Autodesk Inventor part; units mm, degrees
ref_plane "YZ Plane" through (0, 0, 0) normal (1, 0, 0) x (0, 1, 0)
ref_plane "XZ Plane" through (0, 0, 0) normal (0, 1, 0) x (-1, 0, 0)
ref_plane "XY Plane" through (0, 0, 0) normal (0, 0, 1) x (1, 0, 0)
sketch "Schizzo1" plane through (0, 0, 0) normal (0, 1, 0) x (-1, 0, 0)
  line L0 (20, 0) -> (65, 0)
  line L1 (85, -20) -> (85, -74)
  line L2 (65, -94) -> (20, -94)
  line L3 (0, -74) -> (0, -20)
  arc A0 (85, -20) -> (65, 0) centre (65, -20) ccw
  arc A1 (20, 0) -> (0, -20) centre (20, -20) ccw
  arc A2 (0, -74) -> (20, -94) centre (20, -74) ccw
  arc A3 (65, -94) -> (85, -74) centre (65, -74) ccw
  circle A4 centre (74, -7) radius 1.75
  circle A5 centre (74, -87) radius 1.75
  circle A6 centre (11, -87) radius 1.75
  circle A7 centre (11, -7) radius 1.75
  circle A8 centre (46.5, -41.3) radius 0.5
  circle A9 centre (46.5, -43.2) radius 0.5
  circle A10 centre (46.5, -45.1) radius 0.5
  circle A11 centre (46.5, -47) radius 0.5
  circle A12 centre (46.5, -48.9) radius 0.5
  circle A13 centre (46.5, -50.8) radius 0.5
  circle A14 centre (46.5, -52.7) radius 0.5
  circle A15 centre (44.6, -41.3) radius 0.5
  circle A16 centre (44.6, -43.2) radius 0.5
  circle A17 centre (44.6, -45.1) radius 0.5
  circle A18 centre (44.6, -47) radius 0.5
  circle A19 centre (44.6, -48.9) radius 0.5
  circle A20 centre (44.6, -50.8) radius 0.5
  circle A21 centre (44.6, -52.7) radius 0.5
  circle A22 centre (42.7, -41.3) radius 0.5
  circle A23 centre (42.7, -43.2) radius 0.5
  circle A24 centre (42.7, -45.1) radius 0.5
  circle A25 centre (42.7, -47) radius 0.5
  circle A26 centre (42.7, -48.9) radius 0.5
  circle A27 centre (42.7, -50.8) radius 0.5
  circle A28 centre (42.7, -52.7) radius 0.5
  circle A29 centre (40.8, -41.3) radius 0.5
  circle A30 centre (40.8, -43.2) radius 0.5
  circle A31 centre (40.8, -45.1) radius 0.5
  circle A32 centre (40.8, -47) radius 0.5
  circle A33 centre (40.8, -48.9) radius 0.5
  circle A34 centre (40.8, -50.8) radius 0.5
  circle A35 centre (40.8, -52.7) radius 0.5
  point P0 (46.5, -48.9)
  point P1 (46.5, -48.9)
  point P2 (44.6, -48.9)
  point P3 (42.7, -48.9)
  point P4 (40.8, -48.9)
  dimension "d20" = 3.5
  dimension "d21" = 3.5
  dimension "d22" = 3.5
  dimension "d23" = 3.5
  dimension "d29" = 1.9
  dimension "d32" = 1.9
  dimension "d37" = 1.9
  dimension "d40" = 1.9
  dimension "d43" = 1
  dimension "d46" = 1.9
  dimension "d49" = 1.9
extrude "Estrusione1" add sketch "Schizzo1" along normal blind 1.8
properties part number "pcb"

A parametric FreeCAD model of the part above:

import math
import FreeCAD as App
import Part
import Sketcher
Q = App.Units.Quantity

doc = App.newDocument("Part")
body = doc.addObject("PartDesign::Body", "Body")

sketch1 = doc.addObject("Sketcher::SketchObject", "Sketch")
body.addObject(sketch1)
sketch1.AttachmentSupport = (doc.XZ_Plane, [""])
sketch1.MapMode = "FlatFace"
sketch1.addGeometry(Part.LineSegment(App.Vector(-65, 0, 0), App.Vector(-20, 0, 0)), False)
sketch1.addGeometry(Part.ArcOfCircle(Part.Circle(App.Vector(-20, -20, 0), App.Vector(0, 0, 1), 20), math.radians(0), math.radians(90)), False)
sketch1.addGeometry(Part.LineSegment(App.Vector(0, -20, 0), App.Vector(0, -74, 0)), False)
sketch1.addGeometry(Part.ArcOfCircle(Part.Circle(App.Vector(-20, -74, 0), App.Vector(0, 0, 1), 20), math.radians(-90), math.radians(0)), False)
sketch1.addGeometry(Part.LineSegment(App.Vector(-20, -94, 0), App.Vector(-65, -94, 0)), False)
sketch1.addGeometry(Part.ArcOfCircle(Part.Circle(App.Vector(-65, -74, 0), App.Vector(0, 0, 1), 20), math.radians(180), math.radians(270)), False)
sketch1.addGeometry(Part.LineSegment(App.Vector(-85, -74, 0), App.Vector(-85, -20, 0)), False)
sketch1.addGeometry(Part.ArcOfCircle(Part.Circle(App.Vector(-65, -20, 0), App.Vector(0, 0, 1), 20), math.radians(90), math.radians(180)), False)
sketch1.addGeometry(Part.Circle(App.Vector(-11, -87, 0), App.Vector(0, 0, 1), 1.8), False)
sketch1.addGeometry(Part.Circle(App.Vector(-40.8, -52.7, 0), App.Vector(0, 0, 1), 0.5), False)
sketch1.addGeometry(Part.Circle(App.Vector(-40.8, -50.8, 0), App.Vector(0, 0, 1), 0.5), False)
sketch1.addGeometry(Part.Circle(App.Vector(-40.8, -48.9, 0), App.Vector(0, 0, 1), 0.5), False)
sketch1.addGeometry(Part.Circle(App.Vector(-74, -87, 0), App.Vector(0, 0, 1), 1.8), False)
sketch1.addGeometry(Part.Circle(App.Vector(-42.7, -52.7, 0), App.Vector(0, 0, 1), 0.5), False)
sketch1.addGeometry(Part.Circle(App.Vector(-44.6, -52.7, 0), App.Vector(0, 0, 1), 0.5), False)
sketch1.addGeometry(Part.Circle(App.Vector(-42.7, -50.8, 0), App.Vector(0, 0, 1), 0.5), False)
sketch1.addGeometry(Part.Circle(App.Vector(-44.6, -50.8, 0), App.Vector(0, 0, 1), 0.5), False)
sketch1.addGeometry(Part.Circle(App.Vector(-46.5, -52.7, 0), App.Vector(0, 0, 1), 0.5), False)
sketch1.addGeometry(Part.Circle(App.Vector(-46.5, -50.8, 0), App.Vector(0, 0, 1), 0.5), False)
sketch1.addGeometry(Part.Circle(App.Vector(-42.7, -48.9, 0), App.Vector(0, 0, 1), 0.5), False)
sketch1.addGeometry(Part.Circle(App.Vector(-44.6, -48.9, 0), App.Vector(0, 0, 1), 0.5), False)
sketch1.addGeometry(Part.Circle(App.Vector(-46.5, -48.9, 0), App.Vector(0, 0, 1), 0.5), False)
sketch1.addGeometry(Part.Circle(App.Vector(-40.8, -47, 0), App.Vector(0, 0, 1), 0.5), False)
sketch1.addGeometry(Part.Circle(App.Vector(-40.8, -45.1, 0), App.Vector(0, 0, 1), 0.5), False)
sketch1.addGeometry(Part.Circle(App.Vector(-40.8, -43.2, 0), App.Vector(0, 0, 1), 0.5), False)
sketch1.addGeometry(Part.Circle(App.Vector(-40.8, -41.3, 0), App.Vector(0, 0, 1), 0.5), False)
sketch1.addGeometry(Part.Circle(App.Vector(-11, -7, 0), App.Vector(0, 0, 1), 1.8), False)
sketch1.addGeometry(Part.Circle(App.Vector(-42.7, -47, 0), App.Vector(0, 0, 1), 0.5), False)
sketch1.addGeometry(Part.Circle(App.Vector(-44.6, -47, 0), App.Vector(0, 0, 1), 0.5), False)
sketch1.addGeometry(Part.Circle(App.Vector(-42.7, -45.1, 0), App.Vector(0, 0, 1), 0.5), False)
sketch1.addGeometry(Part.Circle(App.Vector(-44.6, -45.1, 0), App.Vector(0, 0, 1), 0.5), False)
sketch1.addGeometry(Part.Circle(App.Vector(-46.5, -47, 0), App.Vector(0, 0, 1), 0.5), False)
sketch1.addGeometry(Part.Circle(App.Vector(-46.5, -45.1, 0), App.Vector(0, 0, 1), 0.5), False)
sketch1.addGeometry(Part.Circle(App.Vector(-42.7, -43.2, 0), App.Vector(0, 0, 1), 0.5), False)
sketch1.addGeometry(Part.Circle(App.Vector(-44.6, -43.2, 0), App.Vector(0, 0, 1), 0.5), False)
sketch1.addGeometry(Part.Circle(App.Vector(-42.7, -41.3, 0), App.Vector(0, 0, 1), 0.5), False)
sketch1.addGeometry(Part.Circle(App.Vector(-44.6, -41.3, 0), App.Vector(0, 0, 1), 0.5), False)
sketch1.addGeometry(Part.Circle(App.Vector(-46.5, -43.2, 0), App.Vector(0, 0, 1), 0.5), False)
sketch1.addGeometry(Part.Circle(App.Vector(-46.5, -41.3, 0), App.Vector(0, 0, 1), 0.5), False)
sketch1.addGeometry(Part.Circle(App.Vector(-74, -7, 0), App.Vector(0, 0, 1), 1.8), False)
sketch1.addConstraint(Sketcher.Constraint("Tangent", 0, 2, 1, 2))
sketch1.addConstraint(Sketcher.Constraint("Tangent", 1, 1, 2, 1))
sketch1.addConstraint(Sketcher.Constraint("Tangent", 2, 2, 3, 2))
sketch1.addConstraint(Sketcher.Constraint("Tangent", 3, 1, 4, 1))
sketch1.addConstraint(Sketcher.Constraint("Tangent", 4, 2, 5, 2))
sketch1.addConstraint(Sketcher.Constraint("Tangent", 5, 1, 6, 1))
sketch1.addConstraint(Sketcher.Constraint("Tangent", 6, 2, 7, 2))
sketch1.addConstraint(Sketcher.Constraint("Tangent", 7, 1, 0, 1))
sketch1.addConstraint(Sketcher.Constraint("Horizontal", 0))
sketch1.addConstraint(Sketcher.Constraint("Vertical", 2))
sketch1.addConstraint(Sketcher.Constraint("Horizontal", 4))
sketch1.addConstraint(Sketcher.Constraint("Vertical", 6))
sketch1.addConstraint(Sketcher.Constraint("Equal", 1, 3))
sketch1.addConstraint(Sketcher.Constraint("Equal", 3, 5))
sketch1.addConstraint(Sketcher.Constraint("Equal", 5, 7))
sketch1.addConstraint(Sketcher.Constraint("Equal", 9, 10))
sketch1.addConstraint(Sketcher.Constraint("Equal", 10, 11))
sketch1.addConstraint(Sketcher.Constraint("Equal", 8, 12))
sketch1.addConstraint(Sketcher.Constraint("Equal", 11, 13))
sketch1.addConstraint(Sketcher.Constraint("Equal", 13, 14))
sketch1.addConstraint(Sketcher.Constraint("Equal", 14, 15))
sketch1.addConstraint(Sketcher.Constraint("Equal", 15, 16))
sketch1.addConstraint(Sketcher.Constraint("Equal", 16, 17))
sketch1.addConstraint(Sketcher.Constraint("Equal", 17, 18))
sketch1.addConstraint(Sketcher.Constraint("Equal", 18, 19))
sketch1.addConstraint(Sketcher.Constraint("Equal", 19, 20))
sketch1.addConstraint(Sketcher.Constraint("Equal", 20, 21))
sketch1.addConstraint(Sketcher.Constraint("Equal", 21, 22))
sketch1.addConstraint(Sketcher.Constraint("Equal", 22, 23))
sketch1.addConstraint(Sketcher.Constraint("Equal", 23, 24))
sketch1.addConstraint(Sketcher.Constraint("Equal", 24, 25))
sketch1.addConstraint(Sketcher.Constraint("Equal", 12, 26))
sketch1.addConstraint(Sketcher.Constraint("Equal", 25, 27))
sketch1.addConstraint(Sketcher.Constraint("Equal", 27, 28))
sketch1.addConstraint(Sketcher.Constraint("Equal", 28, 29))
sketch1.addConstraint(Sketcher.Constraint("Equal", 29, 30))
sketch1.addConstraint(Sketcher.Constraint("Equal", 30, 31))
sketch1.addConstraint(Sketcher.Constraint("Equal", 31, 32))
sketch1.addConstraint(Sketcher.Constraint("Equal", 32, 33))
sketch1.addConstraint(Sketcher.Constraint("Equal", 33, 34))
sketch1.addConstraint(Sketcher.Constraint("Equal", 34, 35))
sketch1.addConstraint(Sketcher.Constraint("Equal", 35, 36))
sketch1.addConstraint(Sketcher.Constraint("Equal", 36, 37))
sketch1.addConstraint(Sketcher.Constraint("Equal", 37, 38))
sketch1.addConstraint(Sketcher.Constraint("Equal", 26, 39))
sketch1.addConstraint(Sketcher.Constraint("PointOnObject", 0, 2, -1))
sketch1.addConstraint(Sketcher.Constraint("PointOnObject", 1, 1, -2))
sketch1.addConstraint(Sketcher.Constraint("Horizontal", 8, 3, 12, 3))
sketch1.addConstraint(Sketcher.Constraint("Horizontal", 9, 3, 13, 3))
sketch1.addConstraint(Sketcher.Constraint("Horizontal", 13, 3, 14, 3))
sketch1.addConstraint(Sketcher.Constraint("Horizontal", 10, 3, 15, 3))
sketch1.addConstraint(Sketcher.Constraint("Horizontal", 15, 3, 16, 3))
sketch1.addConstraint(Sketcher.Constraint("Horizontal", 14, 3, 17, 3))
sketch1.addConstraint(Sketcher.Constraint("Horizontal", 16, 3, 18, 3))
sketch1.addConstraint(Sketcher.Constraint("Horizontal", 11, 3, 19, 3))
sketch1.addConstraint(Sketcher.Constraint("Horizontal", 19, 3, 20, 3))
sketch1.addConstraint(Sketcher.Constraint("Horizontal", 20, 3, 21, 3))
sketch1.addConstraint(Sketcher.Constraint("Horizontal", 22, 3, 27, 3))
sketch1.addConstraint(Sketcher.Constraint("Horizontal", 27, 3, 28, 3))
sketch1.addConstraint(Sketcher.Constraint("Horizontal", 23, 3, 29, 3))
sketch1.addConstraint(Sketcher.Constraint("Horizontal", 29, 3, 30, 3))
sketch1.addConstraint(Sketcher.Constraint("Horizontal", 28, 3, 31, 3))
sketch1.addConstraint(Sketcher.Constraint("Horizontal", 30, 3, 32, 3))
sketch1.addConstraint(Sketcher.Constraint("Horizontal", 24, 3, 33, 3))
sketch1.addConstraint(Sketcher.Constraint("Horizontal", 33, 3, 34, 3))
sketch1.addConstraint(Sketcher.Constraint("Horizontal", 25, 3, 35, 3))
sketch1.addConstraint(Sketcher.Constraint("Horizontal", 35, 3, 36, 3))
sketch1.addConstraint(Sketcher.Constraint("Horizontal", 34, 3, 37, 3))
sketch1.addConstraint(Sketcher.Constraint("Horizontal", 36, 3, 38, 3))
sketch1.addConstraint(Sketcher.Constraint("Horizontal", 26, 3, 39, 3))
sketch1.addConstraint(Sketcher.Constraint("Vertical", 9, 3, 10, 3))
sketch1.addConstraint(Sketcher.Constraint("Vertical", 10, 3, 11, 3))
sketch1.addConstraint(Sketcher.Constraint("Vertical", 13, 3, 15, 3))
sketch1.addConstraint(Sketcher.Constraint("Vertical", 14, 3, 16, 3))
sketch1.addConstraint(Sketcher.Constraint("Vertical", 17, 3, 18, 3))
sketch1.addConstraint(Sketcher.Constraint("Vertical", 15, 3, 19, 3))
sketch1.addConstraint(Sketcher.Constraint("Vertical", 16, 3, 20, 3))
sketch1.addConstraint(Sketcher.Constraint("Vertical", 18, 3, 21, 3))
sketch1.addConstraint(Sketcher.Constraint("Vertical", 11, 3, 22, 3))
sketch1.addConstraint(Sketcher.Constraint("Vertical", 22, 3, 23, 3))
sketch1.addConstraint(Sketcher.Constraint("Vertical", 23, 3, 24, 3))
sketch1.addConstraint(Sketcher.Constraint("Vertical", 24, 3, 25, 3))
sketch1.addConstraint(Sketcher.Constraint("Vertical", 8, 3, 26, 3))
sketch1.addConstraint(Sketcher.Constraint("Vertical", 19, 3, 27, 3))
sketch1.addConstraint(Sketcher.Constraint("Vertical", 20, 3, 28, 3))
sketch1.addConstraint(Sketcher.Constraint("Vertical", 27, 3, 29, 3))
sketch1.addConstraint(Sketcher.Constraint("Vertical", 28, 3, 30, 3))
sketch1.addConstraint(Sketcher.Constraint("Vertical", 21, 3, 31, 3))
sketch1.addConstraint(Sketcher.Constraint("Vertical", 31, 3, 32, 3))
sketch1.addConstraint(Sketcher.Constraint("Vertical", 29, 3, 33, 3))
sketch1.addConstraint(Sketcher.Constraint("Vertical", 30, 3, 34, 3))
sketch1.addConstraint(Sketcher.Constraint("Vertical", 33, 3, 35, 3))
sketch1.addConstraint(Sketcher.Constraint("Vertical", 34, 3, 36, 3))
sketch1.addConstraint(Sketcher.Constraint("Vertical", 32, 3, 37, 3))
sketch1.addConstraint(Sketcher.Constraint("Vertical", 37, 3, 38, 3))
sketch1.addConstraint(Sketcher.Constraint("Vertical", 12, 3, 39, 3))
sketch1.addConstraint(Sketcher.Constraint("Diameter", 9, Q("1 mm")))
sketch1.addConstraint(Sketcher.Constraint("Diameter", 8, Q("3.5 mm")))
sketch1.addConstraint(Sketcher.Constraint("Radius", 1, Q("20 mm")))
sketch1.addConstraint(Sketcher.Constraint("DistanceY", 9, 3, 10, 3, Q("1.9 mm")))
sketch1.addConstraint(Sketcher.Constraint("DistanceY", 10, 3, 11, 3, Q("1.9 mm")))
sketch1.addConstraint(Sketcher.Constraint("DistanceX", 13, 3, 9, 3, Q("1.9 mm")))
sketch1.addConstraint(Sketcher.Constraint("DistanceX", 14, 3, 13, 3, Q("1.9 mm")))
sketch1.addConstraint(Sketcher.Constraint("DistanceX", 17, 3, 14, 3, Q("1.9 mm")))
sketch1.addConstraint(Sketcher.Constraint("DistanceY", 11, 3, 22, 3, Q("1.9 mm")))
sketch1.addConstraint(Sketcher.Constraint("DistanceY", 22, 3, 23, 3, Q("1.9 mm")))
sketch1.addConstraint(Sketcher.Constraint("DistanceY", 23, 3, 24, 3, Q("1.9 mm")))
sketch1.addConstraint(Sketcher.Constraint("DistanceY", 24, 3, 25, 3, Q("1.9 mm")))
sketch1.addConstraint(Sketcher.Constraint("DistanceX", 0, 1, 0, 2, Q("45 mm")))
sketch1.addConstraint(Sketcher.Constraint("DistanceY", 2, 2, 2, 1, Q("54 mm")))
sketch1.addConstraint(Sketcher.Constraint("DistanceX", 8, 3, -1, 1, Q("11 mm")))
sketch1.addConstraint(Sketcher.Constraint("DistanceY", 8, 3, -1, 1, Q("87 mm")))
sketch1.addConstraint(Sketcher.Constraint("DistanceX", 12, 3, -1, 1, Q("74 mm")))
sketch1.addConstraint(Sketcher.Constraint("DistanceY", 22, 3, -1, 1, Q("47 mm")))
sketch1.addConstraint(Sketcher.Constraint("DistanceY", 26, 3, -1, 1, Q("7 mm")))
sketch1.addConstraint(Sketcher.Constraint("DistanceX", 9, 3, -1, 1, Q("40.8 mm")))
pad1 = doc.addObject("PartDesign::Pad", "Pad")
body.addObject(pad1)
pad1.Profile = sketch1
pad1.Length = 1.8
pad1.Reversed = True

doc.recompute()
